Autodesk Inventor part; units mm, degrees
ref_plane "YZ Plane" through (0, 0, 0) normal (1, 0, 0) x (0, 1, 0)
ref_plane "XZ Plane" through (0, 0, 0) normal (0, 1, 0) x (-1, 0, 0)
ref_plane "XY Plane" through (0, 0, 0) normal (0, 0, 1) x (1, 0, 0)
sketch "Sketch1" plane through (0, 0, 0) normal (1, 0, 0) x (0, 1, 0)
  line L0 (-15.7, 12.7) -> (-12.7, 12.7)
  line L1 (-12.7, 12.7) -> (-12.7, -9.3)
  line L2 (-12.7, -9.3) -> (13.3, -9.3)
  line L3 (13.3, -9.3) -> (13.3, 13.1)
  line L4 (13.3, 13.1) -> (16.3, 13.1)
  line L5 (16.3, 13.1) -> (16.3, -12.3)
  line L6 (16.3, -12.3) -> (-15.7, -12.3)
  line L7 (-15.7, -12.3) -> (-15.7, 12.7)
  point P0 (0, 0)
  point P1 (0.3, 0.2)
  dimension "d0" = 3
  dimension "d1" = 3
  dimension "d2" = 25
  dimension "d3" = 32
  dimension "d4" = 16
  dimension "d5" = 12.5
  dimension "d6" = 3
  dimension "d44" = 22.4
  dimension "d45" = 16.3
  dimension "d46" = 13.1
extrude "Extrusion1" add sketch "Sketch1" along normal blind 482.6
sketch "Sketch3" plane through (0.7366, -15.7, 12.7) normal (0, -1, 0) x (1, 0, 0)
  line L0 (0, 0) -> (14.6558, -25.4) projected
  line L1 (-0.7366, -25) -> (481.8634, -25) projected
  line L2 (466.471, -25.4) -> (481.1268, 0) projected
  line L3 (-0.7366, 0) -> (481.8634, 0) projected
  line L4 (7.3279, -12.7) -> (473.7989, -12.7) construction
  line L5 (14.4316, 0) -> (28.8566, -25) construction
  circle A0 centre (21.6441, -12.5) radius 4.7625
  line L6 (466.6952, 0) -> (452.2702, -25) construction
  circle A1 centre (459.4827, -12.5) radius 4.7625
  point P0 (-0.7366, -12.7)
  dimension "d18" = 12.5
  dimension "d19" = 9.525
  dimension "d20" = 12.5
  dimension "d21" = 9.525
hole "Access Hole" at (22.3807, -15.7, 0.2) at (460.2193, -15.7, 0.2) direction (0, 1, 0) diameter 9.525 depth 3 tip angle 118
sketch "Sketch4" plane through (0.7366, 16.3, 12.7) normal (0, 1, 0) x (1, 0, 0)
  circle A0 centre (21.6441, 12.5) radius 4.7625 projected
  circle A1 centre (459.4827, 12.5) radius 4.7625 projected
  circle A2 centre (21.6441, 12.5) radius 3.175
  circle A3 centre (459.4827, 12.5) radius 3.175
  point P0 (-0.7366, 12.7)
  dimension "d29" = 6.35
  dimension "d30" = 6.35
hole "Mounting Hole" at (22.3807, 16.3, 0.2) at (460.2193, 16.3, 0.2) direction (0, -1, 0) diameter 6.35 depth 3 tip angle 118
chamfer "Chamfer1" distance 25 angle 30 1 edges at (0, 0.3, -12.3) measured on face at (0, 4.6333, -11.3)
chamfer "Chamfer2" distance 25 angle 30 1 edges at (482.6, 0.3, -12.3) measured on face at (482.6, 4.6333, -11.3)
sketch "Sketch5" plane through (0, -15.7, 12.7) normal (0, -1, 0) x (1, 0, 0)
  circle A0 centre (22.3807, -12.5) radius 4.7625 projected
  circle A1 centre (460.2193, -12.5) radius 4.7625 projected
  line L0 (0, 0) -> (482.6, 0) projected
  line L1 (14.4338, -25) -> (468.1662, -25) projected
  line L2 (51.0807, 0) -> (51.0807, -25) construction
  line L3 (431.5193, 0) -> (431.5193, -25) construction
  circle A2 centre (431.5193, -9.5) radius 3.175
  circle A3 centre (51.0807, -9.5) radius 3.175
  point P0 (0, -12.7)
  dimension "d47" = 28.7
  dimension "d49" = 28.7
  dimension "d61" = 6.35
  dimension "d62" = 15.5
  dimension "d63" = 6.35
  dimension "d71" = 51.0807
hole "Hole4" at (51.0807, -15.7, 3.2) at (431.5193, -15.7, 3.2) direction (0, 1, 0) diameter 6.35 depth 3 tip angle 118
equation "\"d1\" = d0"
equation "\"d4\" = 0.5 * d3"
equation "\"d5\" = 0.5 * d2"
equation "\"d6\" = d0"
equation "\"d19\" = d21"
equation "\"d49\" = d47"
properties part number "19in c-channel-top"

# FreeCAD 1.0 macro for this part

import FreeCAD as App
import Part
import Sketcher


def edges_at(feature, points):
    """Names of the edges that pass closest to the given points."""
    edges = feature.Shape.Edges
    near = lambda p: min(range(len(edges)), key=lambda i: edges[i].distToShape(Part.Vertex(*p))[0])
    return sorted({f"Edge{near(p) + 1}" for p in points})

doc = App.newDocument("Part")
body = doc.addObject("PartDesign::Body", "Body")

# Sketch on YZ plane
sketch1 = doc.addObject("Sketcher::SketchObject", "Sketch")
body.addObject(sketch1)
sketch1.AttachmentSupport = (doc.YZ_Plane, [""])
sketch1.MapMode = "FlatFace"
sketch1.addGeometry([
    Part.LineSegment(App.Vector(-12.7, 12.7, 0), App.Vector(-15.7, 12.7, 0)),  # 0
    Part.LineSegment(App.Vector(-15.7, 12.7, 0), App.Vector(-15.7, -12.3, 0)),  # 1
    Part.LineSegment(App.Vector(-15.7, -12.3, 0), App.Vector(16.3, -12.3, 0)),  # 2
    Part.LineSegment(App.Vector(16.3, -12.3, 0), App.Vector(16.3, 13.1, 0)),  # 3
    Part.LineSegment(App.Vector(16.3, 13.1, 0), App.Vector(13.3, 13.1, 0)),  # 4
    Part.LineSegment(App.Vector(13.3, 13.1, 0), App.Vector(13.3, -9.3, 0)),  # 5
    Part.LineSegment(App.Vector(13.3, -9.3, 0), App.Vector(-12.7, -9.3, 0)),  # 6
    Part.LineSegment(App.Vector(-12.7, -9.3, 0), App.Vector(-12.7, 12.7, 0)),  # 7
], False)
sketch1.addConstraint([
    Sketcher.Constraint("Coincident", 0, 2, 1, 1),
    Sketcher.Constraint("Coincident", 1, 2, 2, 1),
    Sketcher.Constraint("Coincident", 2, 2, 3, 1),
    Sketcher.Constraint("Coincident", 3, 2, 4, 1),
    Sketcher.Constraint("Coincident", 4, 2, 5, 1),
    Sketcher.Constraint("Coincident", 5, 2, 6, 1),
    Sketcher.Constraint("Coincident", 6, 2, 7, 1),
    Sketcher.Constraint("Coincident", 7, 2, 0, 1),
    Sketcher.Constraint("Horizontal", 0),
    Sketcher.Constraint("Vertical", 1),
    Sketcher.Constraint("Horizontal", 2),
    Sketcher.Constraint("Vertical", 3),
    Sketcher.Constraint("Horizontal", 4),
    Sketcher.Constraint("Vertical", 5),
    Sketcher.Constraint("Horizontal", 6),
    Sketcher.Constraint("Vertical", 7),
    Sketcher.Constraint("Equal", 0, 4),
    Sketcher.Constraint("DistanceX", 0, 2, 0, 1, 3.0),
    Sketcher.Constraint("DistanceX", 2, 1, 2, 2, 32.0),
    Sketcher.Constraint("DistanceY", 1, 2, 1, 1, 25.0),
    Sketcher.Constraint("DistanceY", 5, 2, 5, 1, 22.4),
    Sketcher.Constraint("DistanceY", 2, 2, 5, 2, 3.0),
    Sketcher.Constraint("DistanceX", -1, 1, 2, 2, 16.3),
    Sketcher.Constraint("DistanceY", -1, 1, 3, 2, 13.1),
])
pad1 = doc.addObject("PartDesign::Pad", "Pad")
body.addObject(pad1)
pad1.Profile = sketch1
pad1.Length = 482.6

# Sketch on XZ plane
sketch2 = doc.addObject("Sketcher::SketchObject", "Sketch001")
body.addObject(sketch2)
sketch2.AttachmentSupport = (doc.XZ_Plane, [""])
sketch2.MapMode = "FlatFace"
sketch2.AttachmentOffset = App.Placement(App.Vector(0, 0, 15.7), App.Rotation())
sketch2.addGeometry([
    Part.Circle(App.Vector(22.4, 0.2, 0), App.Vector(0, 0, 1), 4.8),
    Part.Circle(App.Vector(460.2, 0.2, 0), App.Vector(0, 0, 1), 4.8),
], False)
sketch2.addConstraint([
    Sketcher.Constraint("Equal", 0, 1),
    Sketcher.Constraint("Horizontal", 0, 3, 1, 3),
    Sketcher.Constraint("Diameter", 0, 9.525),
    Sketcher.Constraint("DistanceY", -1, 1, 0, 3, 0.2),
    Sketcher.Constraint("DistanceX", -1, 1, 0, 3, 22.3807),
    Sketcher.Constraint("DistanceX", -1, 1, 1, 3, 460.2193),
])
doc.recompute()
hole = doc.addObject("PartDesign::Hole", "Hole")
body.addObject(hole)
hole.Profile = sketch2
hole.ThreadType = "None"
hole.Diameter = 9.525
hole.DepthType = "Dimension"
hole.Depth = 3
hole.DrillPoint = "Angled"
hole.DrillPointAngle = 118

# Sketch on XZ plane
sketch3 = doc.addObject("Sketcher::SketchObject", "Sketch002")
body.addObject(sketch3)
sketch3.AttachmentSupport = (doc.XZ_Plane, [""])
sketch3.MapMode = "FlatFace"
sketch3.AttachmentOffset = App.Placement(App.Vector(0, 0, -16.3), App.Rotation())
sketch3.addGeometry([
    Part.Circle(App.Vector(22.4, 0.2, 0), App.Vector(0, 0, 1), 3.2),
    Part.Circle(App.Vector(460.2, 0.2, 0), App.Vector(0, 0, 1), 3.2),
], False)
sketch3.addConstraint([
    Sketcher.Constraint("Equal", 0, 1),
    Sketcher.Constraint("Horizontal", 0, 3, 1, 3),
    Sketcher.Constraint("Diameter", 0, 6.35),
    Sketcher.Constraint("DistanceY", -1, 1, 0, 3, 0.2),
    Sketcher.Constraint("DistanceX", -1, 1, 0, 3, 22.3807),
    Sketcher.Constraint("DistanceX", -1, 1, 1, 3, 460.2193),
])
doc.recompute()
hole2 = doc.addObject("PartDesign::Hole", "Hole001")
body.addObject(hole2)
hole2.Profile = sketch3
hole2.ThreadType = "None"
hole2.Diameter = 6.35
hole2.DepthType = "Dimension"
hole2.Depth = 3
hole2.DrillPoint = "Angled"
hole2.DrillPointAngle = 118
hole2.Reversed = True
doc.recompute()

chamfer = doc.addObject("PartDesign::Chamfer", "Chamfer")
body.addObject(chamfer)
chamfer.Base = (hole2, edges_at(hole2, [(0, 0.3, -12.3)]))
chamfer.ChamferType = "Distance and Angle"
chamfer.Size = 25
chamfer.Angle = 30
doc.recompute()

chamfer2 = doc.addObject("PartDesign::Chamfer", "Chamfer001")
body.addObject(chamfer2)
chamfer2.Base = (chamfer, edges_at(chamfer, [(482.6, 0.3, -12.3)]))
chamfer2.ChamferType = "Distance and Angle"
chamfer2.Size = 25
chamfer2.Angle = 30

# Sketch on XZ plane
sketch4 = doc.addObject("Sketcher::SketchObject", "Sketch003")
body.addObject(sketch4)
sketch4.AttachmentSupport = (doc.XZ_Plane, [""])
sketch4.MapMode = "FlatFace"
sketch4.AttachmentOffset = App.Placement(App.Vector(0, 0, 15.7), App.Rotation())
sketch4.addGeometry([
    Part.Circle(App.Vector(51.1, 3.2, 0), App.Vector(0, 0, 1), 3.2),
    Part.Circle(App.Vector(431.5, 3.2, 0), App.Vector(0, 0, 1), 3.2),
], False)
sketch4.addConstraint([
    Sketcher.Constraint("Equal", 0, 1),
    Sketcher.Constraint("Horizontal", 0, 3, 1, 3),
    Sketcher.Constraint("Diameter", 0, 6.35),
    Sketcher.Constraint("DistanceY", -1, 1, 0, 3, 3.2),
    Sketcher.Constraint("DistanceX", -1, 1, 0, 3, 51.0807),
    Sketcher.Constraint("DistanceX", -1, 1, 1, 3, 431.5193),
])
doc.recompute()
hole3 = doc.addObject("PartDesign::Hole", "Hole002")
body.addObject(hole3)
hole3.Profile = sketch4
hole3.ThreadType = "None"
hole3.Diameter = 6.35
hole3.DepthType = "Dimension"
hole3.Depth = 3
hole3.DrillPoint = "Angled"
hole3.DrillPointAngle = 118

doc.recompute()
